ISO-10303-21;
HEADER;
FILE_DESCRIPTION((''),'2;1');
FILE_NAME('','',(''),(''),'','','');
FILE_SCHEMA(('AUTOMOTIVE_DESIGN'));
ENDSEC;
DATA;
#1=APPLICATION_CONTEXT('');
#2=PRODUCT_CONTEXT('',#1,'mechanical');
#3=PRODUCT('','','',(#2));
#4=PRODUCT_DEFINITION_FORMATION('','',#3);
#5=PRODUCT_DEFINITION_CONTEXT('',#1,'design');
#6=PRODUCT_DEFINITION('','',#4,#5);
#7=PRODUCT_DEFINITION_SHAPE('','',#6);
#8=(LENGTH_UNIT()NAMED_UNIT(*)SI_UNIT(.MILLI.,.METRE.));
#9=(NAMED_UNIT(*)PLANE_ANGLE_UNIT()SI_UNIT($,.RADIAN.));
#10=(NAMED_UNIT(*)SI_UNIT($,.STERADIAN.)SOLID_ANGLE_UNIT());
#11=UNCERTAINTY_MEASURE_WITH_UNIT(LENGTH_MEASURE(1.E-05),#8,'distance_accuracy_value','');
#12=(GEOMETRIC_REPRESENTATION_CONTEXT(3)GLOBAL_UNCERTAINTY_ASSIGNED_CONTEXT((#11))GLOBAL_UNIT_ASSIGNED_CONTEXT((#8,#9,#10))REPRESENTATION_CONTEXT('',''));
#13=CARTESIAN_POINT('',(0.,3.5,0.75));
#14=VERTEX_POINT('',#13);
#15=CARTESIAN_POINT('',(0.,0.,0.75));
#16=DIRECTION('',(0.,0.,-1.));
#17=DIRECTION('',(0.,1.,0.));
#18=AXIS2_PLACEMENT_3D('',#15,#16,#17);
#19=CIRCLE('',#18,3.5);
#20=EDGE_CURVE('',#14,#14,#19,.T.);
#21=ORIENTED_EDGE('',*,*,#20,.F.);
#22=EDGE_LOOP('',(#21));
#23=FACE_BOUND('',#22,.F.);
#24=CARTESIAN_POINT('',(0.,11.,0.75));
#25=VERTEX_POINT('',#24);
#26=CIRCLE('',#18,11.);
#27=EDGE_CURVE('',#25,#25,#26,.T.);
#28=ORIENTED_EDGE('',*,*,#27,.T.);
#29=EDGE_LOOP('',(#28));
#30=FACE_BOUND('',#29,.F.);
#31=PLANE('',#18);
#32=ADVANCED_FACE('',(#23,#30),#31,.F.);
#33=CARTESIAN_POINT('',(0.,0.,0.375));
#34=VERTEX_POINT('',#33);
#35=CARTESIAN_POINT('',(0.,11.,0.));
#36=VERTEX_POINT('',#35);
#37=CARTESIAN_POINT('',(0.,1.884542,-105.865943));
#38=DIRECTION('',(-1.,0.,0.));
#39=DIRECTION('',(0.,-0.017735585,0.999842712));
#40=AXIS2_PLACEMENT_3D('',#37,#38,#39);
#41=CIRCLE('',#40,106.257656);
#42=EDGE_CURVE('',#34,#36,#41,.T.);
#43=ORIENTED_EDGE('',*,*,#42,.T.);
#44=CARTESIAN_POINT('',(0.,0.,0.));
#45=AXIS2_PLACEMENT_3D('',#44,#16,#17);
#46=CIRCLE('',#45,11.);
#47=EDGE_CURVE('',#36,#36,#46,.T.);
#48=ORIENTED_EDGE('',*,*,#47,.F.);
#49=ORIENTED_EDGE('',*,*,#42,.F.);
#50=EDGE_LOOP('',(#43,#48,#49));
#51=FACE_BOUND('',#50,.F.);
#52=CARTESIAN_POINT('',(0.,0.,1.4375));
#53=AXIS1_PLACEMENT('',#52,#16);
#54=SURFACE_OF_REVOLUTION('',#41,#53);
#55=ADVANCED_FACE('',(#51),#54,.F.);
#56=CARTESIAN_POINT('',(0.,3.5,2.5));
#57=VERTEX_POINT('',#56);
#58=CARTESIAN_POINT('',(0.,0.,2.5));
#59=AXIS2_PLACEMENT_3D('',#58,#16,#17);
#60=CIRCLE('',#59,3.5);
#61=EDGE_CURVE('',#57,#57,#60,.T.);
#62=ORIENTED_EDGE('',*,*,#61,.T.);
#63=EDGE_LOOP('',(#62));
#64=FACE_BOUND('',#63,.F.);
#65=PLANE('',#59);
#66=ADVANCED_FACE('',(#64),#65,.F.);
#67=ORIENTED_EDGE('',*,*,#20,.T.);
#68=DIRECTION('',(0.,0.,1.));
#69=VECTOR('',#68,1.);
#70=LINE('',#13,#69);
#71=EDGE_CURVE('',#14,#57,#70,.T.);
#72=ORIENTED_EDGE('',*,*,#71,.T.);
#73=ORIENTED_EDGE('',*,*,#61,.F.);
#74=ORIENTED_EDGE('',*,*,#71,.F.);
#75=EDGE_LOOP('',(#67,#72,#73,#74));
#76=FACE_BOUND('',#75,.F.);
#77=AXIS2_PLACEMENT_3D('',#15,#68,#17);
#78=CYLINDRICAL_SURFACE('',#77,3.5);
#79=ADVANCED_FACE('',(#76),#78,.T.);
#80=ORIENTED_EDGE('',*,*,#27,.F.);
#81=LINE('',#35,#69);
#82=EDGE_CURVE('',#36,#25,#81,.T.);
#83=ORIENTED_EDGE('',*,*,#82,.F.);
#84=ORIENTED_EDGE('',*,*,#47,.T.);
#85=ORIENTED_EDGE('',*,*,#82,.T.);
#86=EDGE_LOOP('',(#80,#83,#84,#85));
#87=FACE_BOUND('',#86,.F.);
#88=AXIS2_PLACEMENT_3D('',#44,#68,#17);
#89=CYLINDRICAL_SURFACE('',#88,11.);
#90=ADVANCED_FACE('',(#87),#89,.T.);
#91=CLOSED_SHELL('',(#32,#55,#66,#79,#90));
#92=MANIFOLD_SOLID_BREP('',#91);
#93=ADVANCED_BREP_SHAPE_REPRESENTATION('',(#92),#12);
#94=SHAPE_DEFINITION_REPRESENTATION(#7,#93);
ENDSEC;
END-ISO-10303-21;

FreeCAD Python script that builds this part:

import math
import FreeCAD as App
import Part
import Sketcher
from FreeCAD import Vector

doc = App.newDocument("Part")
body = doc.addObject("PartDesign::Body", "Body")

# Sketch on YZ plane
sketch1 = doc.addObject("Sketcher::SketchObject", "Sketch")
body.addObject(sketch1)
sketch1.AttachmentSupport = (doc.YZ_Plane, [""])
sketch1.MapMode = "FlatFace"
sketch1.addGeometry([
    Part.LineSegment(Vector(3.5, 2.5, 0), Vector(0, 2.5, 0)),  # 0
    Part.LineSegment(Vector(0, 2.5, 0), Vector(0, 0.4, 0)),  # 1
    Part.ArcOfCircle(Part.Circle(Vector(1.9, -105.9, 0), Vector(0, 0, 1), 106.3), math.radians(85.08), math.radians(91.02)),  # 2
    Part.LineSegment(Vector(11, 0, 0), Vector(11, 0.8, 0)),  # 3
    Part.LineSegment(Vector(11, 0.8, 0), Vector(3.5, 0.8, 0)),  # 4
    Part.LineSegment(Vector(3.5, 0.8, 0), Vector(3.5, 2.5, 0)),  # 5
], False)
sketch1.addConstraint([
    Sketcher.Constraint("Coincident", 0, 2, 1, 1),
    Sketcher.Constraint("Coincident", 1, 2, 2, 2),
    Sketcher.Constraint("Coincident", 2, 1, 3, 1),
    Sketcher.Constraint("Coincident", 3, 2, 4, 1),
    Sketcher.Constraint("Coincident", 4, 2, 5, 1),
    Sketcher.Constraint("Coincident", 5, 2, 0, 1),
    Sketcher.Constraint("Horizontal", 0),
    Sketcher.Constraint("Vertical", 1),
    Sketcher.Constraint("Vertical", 3),
    Sketcher.Constraint("Horizontal", 4),
    Sketcher.Constraint("Vertical", 5),
    Sketcher.Constraint("PointOnObject", 0, 2, -2),
    Sketcher.Constraint("PointOnObject", 2, 1, -1),
    Sketcher.Constraint("DistanceX", 0, 2, 0, 1, 3.5),
    Sketcher.Constraint("DistanceX", 4, 2, 4, 1, 7.5),
    Sketcher.Constraint("DistanceY", 3, 1, 3, 2, 0.75),
    Sketcher.Constraint("DistanceY", 5, 1, 5, 2, 1.75),
    Sketcher.Constraint("DistanceY", 1, 2, 1, 1, 2.125),
    Sketcher.Constraint("Radius", 2, 106.257656),
])
revolution = doc.addObject("PartDesign::Revolution", "Revolution")
body.addObject(revolution)
revolution.Profile = sketch1
revolution.ReferenceAxis = (sketch1, ["V_Axis"])
revolution.Angle = 360

doc.recompute()
